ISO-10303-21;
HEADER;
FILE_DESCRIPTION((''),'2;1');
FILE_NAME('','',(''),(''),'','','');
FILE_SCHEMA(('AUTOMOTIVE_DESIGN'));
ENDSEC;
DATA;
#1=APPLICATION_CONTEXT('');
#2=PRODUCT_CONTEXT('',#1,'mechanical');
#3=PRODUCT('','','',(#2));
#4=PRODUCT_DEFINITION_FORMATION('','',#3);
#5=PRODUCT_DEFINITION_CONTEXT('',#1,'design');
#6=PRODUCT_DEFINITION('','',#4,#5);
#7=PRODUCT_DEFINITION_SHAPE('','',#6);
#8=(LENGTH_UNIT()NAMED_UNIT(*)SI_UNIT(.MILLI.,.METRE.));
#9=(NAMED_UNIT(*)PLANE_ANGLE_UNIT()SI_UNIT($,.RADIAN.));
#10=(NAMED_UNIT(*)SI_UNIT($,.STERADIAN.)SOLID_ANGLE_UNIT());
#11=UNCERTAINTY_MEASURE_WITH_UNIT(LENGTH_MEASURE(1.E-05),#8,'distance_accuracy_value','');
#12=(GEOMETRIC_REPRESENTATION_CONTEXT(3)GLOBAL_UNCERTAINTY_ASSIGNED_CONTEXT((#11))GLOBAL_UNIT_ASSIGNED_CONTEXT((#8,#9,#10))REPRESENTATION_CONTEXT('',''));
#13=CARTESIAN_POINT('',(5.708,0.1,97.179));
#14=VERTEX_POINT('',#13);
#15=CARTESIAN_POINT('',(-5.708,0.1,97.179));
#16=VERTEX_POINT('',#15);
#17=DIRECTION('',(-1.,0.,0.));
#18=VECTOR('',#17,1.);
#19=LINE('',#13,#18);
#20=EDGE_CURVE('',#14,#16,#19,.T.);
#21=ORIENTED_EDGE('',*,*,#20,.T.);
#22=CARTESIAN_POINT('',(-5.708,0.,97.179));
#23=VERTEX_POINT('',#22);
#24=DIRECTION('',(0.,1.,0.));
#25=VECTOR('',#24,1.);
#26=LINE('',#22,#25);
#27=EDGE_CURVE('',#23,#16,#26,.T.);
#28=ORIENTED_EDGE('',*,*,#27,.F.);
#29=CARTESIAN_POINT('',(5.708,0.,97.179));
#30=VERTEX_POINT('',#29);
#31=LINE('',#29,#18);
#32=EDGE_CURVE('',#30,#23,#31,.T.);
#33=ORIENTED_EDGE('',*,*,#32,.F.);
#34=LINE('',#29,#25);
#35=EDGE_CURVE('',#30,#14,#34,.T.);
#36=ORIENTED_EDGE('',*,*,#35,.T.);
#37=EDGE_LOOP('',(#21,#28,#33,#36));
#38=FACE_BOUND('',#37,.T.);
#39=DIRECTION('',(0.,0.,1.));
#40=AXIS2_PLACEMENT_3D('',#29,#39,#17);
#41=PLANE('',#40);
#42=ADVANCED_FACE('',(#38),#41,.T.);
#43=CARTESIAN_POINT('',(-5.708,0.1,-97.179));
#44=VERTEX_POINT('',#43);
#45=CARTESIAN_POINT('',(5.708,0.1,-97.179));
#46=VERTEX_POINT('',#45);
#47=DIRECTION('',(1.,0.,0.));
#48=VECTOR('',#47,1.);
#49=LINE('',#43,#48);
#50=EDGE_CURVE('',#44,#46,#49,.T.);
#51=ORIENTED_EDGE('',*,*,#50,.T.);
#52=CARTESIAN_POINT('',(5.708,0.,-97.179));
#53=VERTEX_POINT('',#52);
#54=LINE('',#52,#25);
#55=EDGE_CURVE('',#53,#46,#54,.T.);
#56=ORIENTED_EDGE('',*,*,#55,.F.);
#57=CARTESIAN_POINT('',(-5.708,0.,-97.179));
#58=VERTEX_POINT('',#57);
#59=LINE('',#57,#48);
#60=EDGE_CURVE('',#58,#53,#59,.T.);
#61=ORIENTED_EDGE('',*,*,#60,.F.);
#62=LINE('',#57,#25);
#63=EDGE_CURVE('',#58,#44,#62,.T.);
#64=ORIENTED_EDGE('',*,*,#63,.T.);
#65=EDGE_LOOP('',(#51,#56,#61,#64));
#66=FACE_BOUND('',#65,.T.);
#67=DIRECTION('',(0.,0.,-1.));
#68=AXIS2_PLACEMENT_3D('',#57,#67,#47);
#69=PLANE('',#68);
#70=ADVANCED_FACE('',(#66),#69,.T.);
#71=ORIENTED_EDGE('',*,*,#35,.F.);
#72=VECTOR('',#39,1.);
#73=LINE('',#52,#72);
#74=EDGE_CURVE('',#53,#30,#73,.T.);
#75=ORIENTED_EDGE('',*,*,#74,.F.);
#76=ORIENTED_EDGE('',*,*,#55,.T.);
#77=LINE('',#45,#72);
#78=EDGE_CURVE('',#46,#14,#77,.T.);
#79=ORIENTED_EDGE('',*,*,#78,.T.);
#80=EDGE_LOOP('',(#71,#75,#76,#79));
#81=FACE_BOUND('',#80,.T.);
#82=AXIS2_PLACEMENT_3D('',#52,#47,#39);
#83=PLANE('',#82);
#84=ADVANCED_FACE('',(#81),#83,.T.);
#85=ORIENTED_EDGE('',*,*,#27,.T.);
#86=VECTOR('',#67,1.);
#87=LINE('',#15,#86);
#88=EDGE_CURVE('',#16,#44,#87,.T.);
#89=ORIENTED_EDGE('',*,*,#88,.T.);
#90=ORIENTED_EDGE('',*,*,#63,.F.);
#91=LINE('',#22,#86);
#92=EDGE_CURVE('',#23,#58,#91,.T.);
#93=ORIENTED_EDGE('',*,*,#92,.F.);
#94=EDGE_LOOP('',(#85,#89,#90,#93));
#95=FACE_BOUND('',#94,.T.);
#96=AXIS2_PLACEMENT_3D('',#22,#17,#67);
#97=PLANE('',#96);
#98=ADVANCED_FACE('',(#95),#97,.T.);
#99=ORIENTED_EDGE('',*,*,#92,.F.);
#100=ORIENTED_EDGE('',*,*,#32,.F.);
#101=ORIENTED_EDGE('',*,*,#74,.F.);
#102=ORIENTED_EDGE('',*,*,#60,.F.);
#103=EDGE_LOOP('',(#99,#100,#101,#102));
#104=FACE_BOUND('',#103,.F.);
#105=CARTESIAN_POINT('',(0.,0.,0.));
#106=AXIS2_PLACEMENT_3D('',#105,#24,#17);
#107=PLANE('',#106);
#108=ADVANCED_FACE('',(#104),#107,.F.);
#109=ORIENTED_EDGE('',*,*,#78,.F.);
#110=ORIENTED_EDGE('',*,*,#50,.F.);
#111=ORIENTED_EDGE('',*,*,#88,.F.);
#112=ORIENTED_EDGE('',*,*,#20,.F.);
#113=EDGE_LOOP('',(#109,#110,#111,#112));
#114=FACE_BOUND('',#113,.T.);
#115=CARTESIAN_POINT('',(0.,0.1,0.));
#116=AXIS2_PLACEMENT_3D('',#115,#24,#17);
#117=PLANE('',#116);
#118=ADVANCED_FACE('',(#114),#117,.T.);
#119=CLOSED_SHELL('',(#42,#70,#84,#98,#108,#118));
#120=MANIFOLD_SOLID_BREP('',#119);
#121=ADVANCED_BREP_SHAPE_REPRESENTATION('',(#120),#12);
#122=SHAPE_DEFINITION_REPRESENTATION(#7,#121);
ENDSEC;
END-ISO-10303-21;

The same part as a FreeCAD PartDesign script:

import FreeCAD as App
import Part
import Sketcher
from FreeCAD import Vector


def add_polygon(sketch, points):
    """Adds a closed chain of lines whose ends are joined by coincident constraints."""
    first, n = sketch.GeometryCount, len(points)
    for a, b in zip(points, points[1:] + points[:1]):
        sketch.addGeometry(Part.LineSegment(App.Vector(*a, 0), App.Vector(*b, 0)), False)
    for i in range(n):
        sketch.addConstraint(Sketcher.Constraint("Coincident", first + i, 2, first + (i + 1) % n, 1))

doc = App.newDocument("Part")
body = doc.addObject("PartDesign::Body", "Body")

# Sketch on XZ plane
sketch1 = body.newObject("Sketcher::SketchObject", "Sketch")
sketch1.AttachmentSupport = (doc.getObject("XZ_Plane"), [""])
sketch1.MapMode = "FlatFace"
add_polygon(sketch1, [(-6, 97), (6, 97), (6, -97), (-6, -97)])  # lines 0-3
sketch1.addConstraint([
    Sketcher.Constraint("Horizontal", 0),
    Sketcher.Constraint("Vertical", 1),
    Sketcher.Constraint("Horizontal", 2),
    Sketcher.Constraint("Vertical", 3),
    Sketcher.Constraint("Symmetric", 0, 2, 2, 2, -1, 1),
    Sketcher.Constraint("DistanceX", 0, 1, 0, 2, 11.416),
    Sketcher.Constraint("DistanceY", 1, 2, 1, 1, 194.358),
])
pad1 = body.newObject("PartDesign::Pad", "Pad")
pad1.Profile = sketch1
pad1.Length = 0.1
pad1.Reversed = True

doc.recompute()
